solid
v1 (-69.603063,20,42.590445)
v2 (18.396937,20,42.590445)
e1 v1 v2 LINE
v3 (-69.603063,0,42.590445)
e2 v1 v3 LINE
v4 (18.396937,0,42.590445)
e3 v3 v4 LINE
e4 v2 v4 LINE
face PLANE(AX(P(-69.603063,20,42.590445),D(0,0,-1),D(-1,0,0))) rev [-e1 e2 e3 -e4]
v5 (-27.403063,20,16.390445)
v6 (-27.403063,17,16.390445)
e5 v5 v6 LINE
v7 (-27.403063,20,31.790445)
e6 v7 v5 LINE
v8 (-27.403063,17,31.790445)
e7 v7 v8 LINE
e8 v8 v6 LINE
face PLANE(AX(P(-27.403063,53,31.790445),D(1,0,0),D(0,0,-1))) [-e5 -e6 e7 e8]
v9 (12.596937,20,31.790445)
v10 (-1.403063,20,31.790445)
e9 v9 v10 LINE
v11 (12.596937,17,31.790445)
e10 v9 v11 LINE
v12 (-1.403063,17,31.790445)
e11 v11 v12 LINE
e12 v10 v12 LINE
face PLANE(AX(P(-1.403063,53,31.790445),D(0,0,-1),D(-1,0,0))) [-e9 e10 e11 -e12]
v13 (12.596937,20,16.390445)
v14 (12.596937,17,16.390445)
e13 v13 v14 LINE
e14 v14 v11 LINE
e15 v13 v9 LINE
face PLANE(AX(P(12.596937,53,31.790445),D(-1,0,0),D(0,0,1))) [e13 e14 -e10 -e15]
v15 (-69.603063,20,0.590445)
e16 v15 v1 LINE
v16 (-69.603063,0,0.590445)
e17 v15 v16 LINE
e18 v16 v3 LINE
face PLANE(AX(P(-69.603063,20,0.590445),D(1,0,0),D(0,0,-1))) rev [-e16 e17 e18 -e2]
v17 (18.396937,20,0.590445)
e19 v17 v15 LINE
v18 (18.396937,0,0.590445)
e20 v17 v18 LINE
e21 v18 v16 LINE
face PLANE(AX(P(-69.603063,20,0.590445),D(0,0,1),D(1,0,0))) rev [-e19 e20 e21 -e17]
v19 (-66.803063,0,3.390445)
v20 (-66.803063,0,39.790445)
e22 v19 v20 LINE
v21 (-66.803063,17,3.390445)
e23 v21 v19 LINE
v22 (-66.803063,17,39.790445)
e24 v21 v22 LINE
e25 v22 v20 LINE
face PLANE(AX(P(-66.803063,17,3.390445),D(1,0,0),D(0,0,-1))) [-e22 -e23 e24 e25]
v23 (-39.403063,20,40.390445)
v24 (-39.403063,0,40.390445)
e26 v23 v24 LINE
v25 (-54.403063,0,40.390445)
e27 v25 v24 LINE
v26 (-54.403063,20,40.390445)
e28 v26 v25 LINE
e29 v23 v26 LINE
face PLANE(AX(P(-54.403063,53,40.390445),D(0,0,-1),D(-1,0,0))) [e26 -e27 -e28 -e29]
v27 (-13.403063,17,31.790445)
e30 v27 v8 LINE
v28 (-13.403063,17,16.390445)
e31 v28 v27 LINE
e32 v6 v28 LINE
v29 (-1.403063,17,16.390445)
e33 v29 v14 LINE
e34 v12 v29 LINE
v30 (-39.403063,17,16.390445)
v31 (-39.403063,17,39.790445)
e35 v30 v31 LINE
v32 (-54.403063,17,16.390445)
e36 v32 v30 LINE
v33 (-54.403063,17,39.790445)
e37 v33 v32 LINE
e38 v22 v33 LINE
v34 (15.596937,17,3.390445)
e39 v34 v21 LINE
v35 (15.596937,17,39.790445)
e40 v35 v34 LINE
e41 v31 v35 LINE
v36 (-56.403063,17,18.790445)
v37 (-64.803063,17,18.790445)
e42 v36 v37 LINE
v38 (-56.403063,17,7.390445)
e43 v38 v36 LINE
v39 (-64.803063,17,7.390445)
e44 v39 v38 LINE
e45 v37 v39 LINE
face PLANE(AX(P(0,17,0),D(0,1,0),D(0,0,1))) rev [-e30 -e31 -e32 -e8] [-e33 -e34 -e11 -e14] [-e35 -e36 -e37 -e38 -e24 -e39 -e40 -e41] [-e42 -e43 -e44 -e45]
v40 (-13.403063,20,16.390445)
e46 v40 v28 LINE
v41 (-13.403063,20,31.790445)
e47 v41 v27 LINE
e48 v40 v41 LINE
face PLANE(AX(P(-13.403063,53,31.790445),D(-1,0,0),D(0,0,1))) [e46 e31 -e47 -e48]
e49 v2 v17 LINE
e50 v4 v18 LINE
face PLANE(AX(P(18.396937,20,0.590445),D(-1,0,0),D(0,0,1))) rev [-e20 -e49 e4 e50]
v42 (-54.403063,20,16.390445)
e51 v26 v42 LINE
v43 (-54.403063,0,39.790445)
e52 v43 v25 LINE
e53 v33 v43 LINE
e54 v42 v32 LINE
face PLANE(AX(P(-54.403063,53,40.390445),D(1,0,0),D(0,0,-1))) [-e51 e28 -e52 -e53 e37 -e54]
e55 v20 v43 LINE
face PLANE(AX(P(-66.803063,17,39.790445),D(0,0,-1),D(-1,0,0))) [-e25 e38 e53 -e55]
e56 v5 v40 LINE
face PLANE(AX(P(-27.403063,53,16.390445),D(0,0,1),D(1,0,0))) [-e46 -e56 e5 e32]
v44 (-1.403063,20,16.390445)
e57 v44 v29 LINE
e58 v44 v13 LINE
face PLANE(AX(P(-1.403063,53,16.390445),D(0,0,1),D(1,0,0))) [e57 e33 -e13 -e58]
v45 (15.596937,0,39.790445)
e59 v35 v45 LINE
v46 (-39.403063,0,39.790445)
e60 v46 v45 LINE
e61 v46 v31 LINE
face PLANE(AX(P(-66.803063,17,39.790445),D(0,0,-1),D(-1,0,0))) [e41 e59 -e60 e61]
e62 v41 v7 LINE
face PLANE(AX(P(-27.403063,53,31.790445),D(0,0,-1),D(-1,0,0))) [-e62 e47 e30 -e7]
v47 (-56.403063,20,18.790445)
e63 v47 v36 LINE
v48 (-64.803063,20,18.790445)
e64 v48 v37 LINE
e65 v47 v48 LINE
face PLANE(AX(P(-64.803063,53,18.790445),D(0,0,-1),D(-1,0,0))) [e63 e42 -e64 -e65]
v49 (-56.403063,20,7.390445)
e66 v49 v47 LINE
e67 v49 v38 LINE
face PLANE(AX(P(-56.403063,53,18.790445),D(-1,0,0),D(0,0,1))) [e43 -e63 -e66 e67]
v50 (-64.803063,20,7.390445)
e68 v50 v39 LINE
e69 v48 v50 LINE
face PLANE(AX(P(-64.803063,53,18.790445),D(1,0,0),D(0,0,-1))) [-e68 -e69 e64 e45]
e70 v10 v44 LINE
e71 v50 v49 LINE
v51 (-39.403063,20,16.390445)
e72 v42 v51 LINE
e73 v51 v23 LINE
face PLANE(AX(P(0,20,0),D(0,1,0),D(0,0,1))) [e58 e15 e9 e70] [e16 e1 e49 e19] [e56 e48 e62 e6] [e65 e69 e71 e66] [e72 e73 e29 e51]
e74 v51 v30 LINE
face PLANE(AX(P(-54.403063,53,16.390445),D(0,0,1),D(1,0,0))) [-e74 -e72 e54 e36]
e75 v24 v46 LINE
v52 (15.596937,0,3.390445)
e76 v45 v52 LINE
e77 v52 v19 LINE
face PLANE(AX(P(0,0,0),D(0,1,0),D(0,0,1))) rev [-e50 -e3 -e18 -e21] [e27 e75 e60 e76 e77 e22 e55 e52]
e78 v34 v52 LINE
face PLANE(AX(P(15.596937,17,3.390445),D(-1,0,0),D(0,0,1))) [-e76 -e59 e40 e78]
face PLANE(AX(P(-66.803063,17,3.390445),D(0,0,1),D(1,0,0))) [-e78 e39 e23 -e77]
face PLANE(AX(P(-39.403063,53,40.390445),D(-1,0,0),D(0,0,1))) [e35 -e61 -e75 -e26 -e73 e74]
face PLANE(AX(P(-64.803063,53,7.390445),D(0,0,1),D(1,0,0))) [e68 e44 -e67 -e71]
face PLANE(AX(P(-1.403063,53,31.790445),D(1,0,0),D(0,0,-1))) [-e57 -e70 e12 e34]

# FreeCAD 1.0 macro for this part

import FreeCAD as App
import Part
import Sketcher
Q = App.Units.Quantity

doc = App.newDocument("Part")
body = doc.addObject("PartDesign::Body", "Body")

# Sketch on XZ plane
sketch1 = doc.addObject("Sketcher::SketchObject", "Sketch")
body.addObject(sketch1)
sketch1.AttachmentSupport = (doc.XZ_Plane, [""])
sketch1.MapMode = "FlatFace"
sketch1.addGeometry(Part.LineSegment(App.Vector(-70, 1, 0), App.Vector(-70, 43, 0)), False)
sketch1.addGeometry(Part.LineSegment(App.Vector(-70, 43, 0), App.Vector(18, 43, 0)), False)
sketch1.addGeometry(Part.LineSegment(App.Vector(18, 43, 0), App.Vector(18, 1, 0)), False)
sketch1.addGeometry(Part.LineSegment(App.Vector(18, 1, 0), App.Vector(-70, 1, 0)), False)
sketch1.addConstraint(Sketcher.Constraint("Coincident", 0, 2, 1, 1))
sketch1.addConstraint(Sketcher.Constraint("Coincident", 1, 2, 2, 1))
sketch1.addConstraint(Sketcher.Constraint("Coincident", 2, 2, 3, 1))
sketch1.addConstraint(Sketcher.Constraint("Coincident", 3, 2, 0, 1))
sketch1.addConstraint(Sketcher.Constraint("Vertical", 0))
sketch1.addConstraint(Sketcher.Constraint("Horizontal", 1))
sketch1.addConstraint(Sketcher.Constraint("Vertical", 2))
sketch1.addConstraint(Sketcher.Constraint("Horizontal", 3))
sketch1.addConstraint(Sketcher.Constraint("DistanceX", 1, 1, 1, 2, Q("88 mm")))
sketch1.addConstraint(Sketcher.Constraint("DistanceY", 0, 1, 0, 2, Q("42 mm")))
sketch1.addConstraint(Sketcher.Constraint("DistanceX", 0, 2, -1, 1, Q("69.603063 mm")))
sketch1.addConstraint(Sketcher.Constraint("DistanceY", -1, 1, 0, 2, Q("42.590445 mm")))
pad1 = doc.addObject("PartDesign::Pad", "Pad")
body.addObject(pad1)
pad1.Profile = sketch1
pad1.Length = 20
pad1.Reversed = True

# Sketch on XZ plane
sketch2 = doc.addObject("Sketcher::SketchObject", "Sketch001")
body.addObject(sketch2)
sketch2.AttachmentSupport = (doc.XZ_Plane, [""])
sketch2.MapMode = "FlatFace"
sketch2.addGeometry(Part.LineSegment(App.Vector(-67, 3, 0), App.Vector(-67, 40, 0)), False)
sketch2.addGeometry(Part.LineSegment(App.Vector(-67, 40, 0), App.Vector(16, 40, 0)), False)
sketch2.addGeometry(Part.LineSegment(App.Vector(16, 40, 0), App.Vector(16, 3, 0)), False)
sketch2.addGeometry(Part.LineSegment(App.Vector(16, 3, 0), App.Vector(-67, 3, 0)), False)
sketch2.addConstraint(Sketcher.Constraint("Coincident", 0, 2, 1, 1))
sketch2.addConstraint(Sketcher.Constraint("Coincident", 1, 2, 2, 1))
sketch2.addConstraint(Sketcher.Constraint("Coincident", 2, 2, 3, 1))
sketch2.addConstraint(Sketcher.Constraint("Coincident", 3, 2, 0, 1))
sketch2.addConstraint(Sketcher.Constraint("Vertical", 0))
sketch2.addConstraint(Sketcher.Constraint("Horizontal", 1))
sketch2.addConstraint(Sketcher.Constraint("Vertical", 2))
sketch2.addConstraint(Sketcher.Constraint("Horizontal", 3))
sketch2.addConstraint(Sketcher.Constraint("DistanceX", 1, 1, 1, 2, Q("82.4 mm")))
sketch2.addConstraint(Sketcher.Constraint("DistanceY", 0, 1, 0, 2, Q("36.4 mm")))
sketch2.addConstraint(Sketcher.Constraint("DistanceX", 0, 2, -1, 1, Q("66.803063 mm")))
sketch2.addConstraint(Sketcher.Constraint("DistanceY", -1, 1, 0, 2, Q("39.790445 mm")))
pocket1 = doc.addObject("PartDesign::Pocket", "Pocket")
body.addObject(pocket1)
pocket1.Profile = sketch2
pocket1.Length = 17

# Sketch on XZ plane
sketch3 = doc.addObject("Sketcher::SketchObject", "Sketch002")
body.addObject(sketch3)
sketch3.AttachmentSupport = (doc.XZ_Plane, [""])
sketch3.MapMode = "FlatFace"
sketch3.addGeometry(Part.LineSegment(App.Vector(-1, 16, 0), App.Vector(-1, 32, 0)), False)
sketch3.addGeometry(Part.LineSegment(App.Vector(-1, 32, 0), App.Vector(13, 32, 0)), False)
sketch3.addGeometry(Part.LineSegment(App.Vector(13, 32, 0), App.Vector(13, 16, 0)), False)
sketch3.addGeometry(Part.LineSegment(App.Vector(13, 16, 0), App.Vector(-1, 16, 0)), False)
sketch3.addGeometry(Part.LineSegment(App.Vector(-27, 16, 0), App.Vector(-27, 32, 0)), False)
sketch3.addGeometry(Part.LineSegment(App.Vector(-27, 32, 0), App.Vector(-13, 32, 0)), False)
sketch3.addGeometry(Part.LineSegment(App.Vector(-13, 32, 0), App.Vector(-13, 16, 0)), False)
sketch3.addGeometry(Part.LineSegment(App.Vector(-13, 16, 0), App.Vector(-27, 16, 0)), False)
sketch3.addGeometry(Part.LineSegment(App.Vector(-54, 16, 0), App.Vector(-54, 40, 0)), False)
sketch3.addGeometry(Part.LineSegment(App.Vector(-54, 40, 0), App.Vector(-39, 40, 0)), False)
sketch3.addGeometry(Part.LineSegment(App.Vector(-39, 40, 0), App.Vector(-39, 16, 0)), False)
sketch3.addGeometry(Part.LineSegment(App.Vector(-39, 16, 0), App.Vector(-54, 16, 0)), False)
sketch3.addGeometry(Part.LineSegment(App.Vector(-65, 7, 0), App.Vector(-65, 19, 0)), False)
sketch3.addGeometry(Part.LineSegment(App.Vector(-65, 19, 0), App.Vector(-56, 19, 0)), False)
sketch3.addGeometry(Part.LineSegment(App.Vector(-56, 19, 0), App.Vector(-56, 7, 0)), False)
sketch3.addGeometry(Part.LineSegment(App.Vector(-56, 7, 0), App.Vector(-65, 7, 0)), False)
sketch3.addConstraint(Sketcher.Constraint("Coincident", 0, 2, 1, 1))
sketch3.addConstraint(Sketcher.Constraint("Coincident", 1, 2, 2, 1))
sketch3.addConstraint(Sketcher.Constraint("Coincident", 2, 2, 3, 1))
sketch3.addConstraint(Sketcher.Constraint("Coincident", 3, 2, 0, 1))
sketch3.addConstraint(Sketcher.Constraint("Coincident", 4, 2, 5, 1))
sketch3.addConstraint(Sketcher.Constraint("Coincident", 5, 2, 6, 1))
sketch3.addConstraint(Sketcher.Constraint("Coincident", 6, 2, 7, 1))
sketch3.addConstraint(Sketcher.Constraint("Coincident", 7, 2, 4, 1))
sketch3.addConstraint(Sketcher.Constraint("Coincident", 8, 2, 9, 1))
sketch3.addConstraint(Sketcher.Constraint("Coincident", 9, 2, 10, 1))
sketch3.addConstraint(Sketcher.Constraint("Coincident", 10, 2, 11, 1))
sketch3.addConstraint(Sketcher.Constraint("Coincident", 11, 2, 8, 1))
sketch3.addConstraint(Sketcher.Constraint("Coincident", 12, 2, 13, 1))
sketch3.addConstraint(Sketcher.Constraint("Coincident", 13, 2, 14, 1))
sketch3.addConstraint(Sketcher.Constraint("Coincident", 14, 2, 15, 1))
sketch3.addConstraint(Sketcher.Constraint("Coincident", 15, 2, 12, 1))
sketch3.addConstraint(Sketcher.Constraint("Vertical", 0))
sketch3.addConstraint(Sketcher.Constraint("Horizontal", 1))
sketch3.addConstraint(Sketcher.Constraint("Vertical", 2))
sketch3.addConstraint(Sketcher.Constraint("Horizontal", 3))
sketch3.addConstraint(Sketcher.Constraint("Vertical", 4))
sketch3.addConstraint(Sketcher.Constraint("Horizontal", 5))
sketch3.addConstraint(Sketcher.Constraint("Vertical", 6))
sketch3.addConstraint(Sketcher.Constraint("Horizontal", 7))
sketch3.addConstraint(Sketcher.Constraint("Vertical", 8))
sketch3.addConstraint(Sketcher.Constraint("Horizontal", 9))
sketch3.addConstraint(Sketcher.Constraint("Vertical", 10))
sketch3.addConstraint(Sketcher.Constraint("Horizontal", 11))
sketch3.addConstraint(Sketcher.Constraint("Vertical", 12))
sketch3.addConstraint(Sketcher.Constraint("Horizontal", 13))
sketch3.addConstraint(Sketcher.Constraint("Vertical", 14))
sketch3.addConstraint(Sketcher.Constraint("Horizontal", 15))
sketch3.addConstraint(Sketcher.Constraint("Horizontal", 1, 2, 4, 2))
sketch3.addConstraint(Sketcher.Constraint("Horizontal", 3, 2, 6, 2))
sketch3.addConstraint(Sketcher.Constraint("Horizontal", 7, 2, 10, 2))
sketch3.addConstraint(Sketcher.Constraint("Equal", 3, 5))
sketch3.addConstraint(Sketcher.Constraint("DistanceX", 1, 1, 1, 2, Q("14 mm")))
sketch3.addConstraint(Sketcher.Constraint("DistanceX", 9, 1, 9, 2, Q("15 mm")))
sketch3.addConstraint(Sketcher.Constraint("DistanceY", 8, 1, 8, 2, Q("24 mm")))
sketch3.addConstraint(Sketcher.Constraint("DistanceX", 13, 1, 13, 2, Q("8.4 mm")))
sketch3.addConstraint(Sketcher.Constraint("DistanceY", 0, 1, 0, 2, Q("15.4 mm")))
sketch3.addConstraint(Sketcher.Constraint("DistanceY", 12, 1, 12, 2, Q("11.4 mm")))
sketch3.addConstraint(Sketcher.Constraint("DistanceX", 4, 2, 0, 2, Q("26 mm")))
sketch3.addConstraint(Sketcher.Constraint("DistanceX", 8, 2, 4, 2, Q("27 mm")))
sketch3.addConstraint(Sketcher.Constraint("DistanceX", 13, 2, 11, 2, Q("2 mm")))
sketch3.addConstraint(Sketcher.Constraint("DistanceY", 14, 2, 11, 2, Q("9 mm")))
sketch3.addConstraint(Sketcher.Constraint("DistanceX", 0, 2, -1, 1, Q("1.403063 mm")))
sketch3.addConstraint(Sketcher.Constraint("DistanceY", -1, 1, 0, 2, Q("31.790445 mm")))
pocket2 = doc.addObject("PartDesign::Pocket", "Pocket001")
body.addObject(pocket2)
pocket2.Profile = sketch3
pocket2.Length = 53

doc.recompute()
